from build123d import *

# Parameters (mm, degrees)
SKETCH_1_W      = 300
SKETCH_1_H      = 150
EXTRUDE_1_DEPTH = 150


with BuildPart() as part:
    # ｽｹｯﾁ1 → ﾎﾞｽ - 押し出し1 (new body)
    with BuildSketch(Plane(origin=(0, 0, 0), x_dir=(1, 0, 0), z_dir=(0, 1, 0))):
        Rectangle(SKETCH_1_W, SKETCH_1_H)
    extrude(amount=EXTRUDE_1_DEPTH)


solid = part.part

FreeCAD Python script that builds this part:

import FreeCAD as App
import Part
import Sketcher

V = App.Vector


def add_polygon(sketch, points):
    """Adds a closed chain of lines whose ends are joined by coincident constraints."""
    first, n = sketch.GeometryCount, len(points)
    for a, b in zip(points, points[1:] + points[:1]):
        sketch.addGeometry(Part.LineSegment(App.Vector(*a, 0), App.Vector(*b, 0)), False)
    for i in range(n):
        sketch.addConstraint(Sketcher.Constraint("Coincident", first + i, 2, first + (i + 1) % n, 1))

doc = App.newDocument("Part")
body = doc.addObject("PartDesign::Body", "Body")

# Sketch on XZ plane
sketch1 = doc.addObject("Sketcher::SketchObject", "Sketch")
body.addObject(sketch1)
sketch1.AttachmentSupport = (doc.XZ_Plane, [""])
sketch1.MapMode = "FlatFace"
add_polygon(sketch1, [(-150, -75), (-150, 75), (150, 75), (150, -75)])  # lines 0-3
sketch1.addConstraint(Sketcher.Constraint("Vertical", 0))
sketch1.addConstraint(Sketcher.Constraint("Horizontal", 1))
sketch1.addConstraint(Sketcher.Constraint("Vertical", 2))
sketch1.addConstraint(Sketcher.Constraint("Horizontal", 3))
sketch1.addConstraint(Sketcher.Constraint("Symmetric", 0, 2, 2, 2, -1, 1))
sketch1.addConstraint(Sketcher.Constraint("DistanceX", 1, 1, 1, 2, 300.0))
sketch1.addConstraint(Sketcher.Constraint("DistanceY", 0, 1, 0, 2, 150.0))
pad1 = doc.addObject("PartDesign::Pad", "Pad")
body.addObject(pad1)
pad1.Profile = sketch1
pad1.Length = 150
pad1.Reversed = True

doc.recompute()
